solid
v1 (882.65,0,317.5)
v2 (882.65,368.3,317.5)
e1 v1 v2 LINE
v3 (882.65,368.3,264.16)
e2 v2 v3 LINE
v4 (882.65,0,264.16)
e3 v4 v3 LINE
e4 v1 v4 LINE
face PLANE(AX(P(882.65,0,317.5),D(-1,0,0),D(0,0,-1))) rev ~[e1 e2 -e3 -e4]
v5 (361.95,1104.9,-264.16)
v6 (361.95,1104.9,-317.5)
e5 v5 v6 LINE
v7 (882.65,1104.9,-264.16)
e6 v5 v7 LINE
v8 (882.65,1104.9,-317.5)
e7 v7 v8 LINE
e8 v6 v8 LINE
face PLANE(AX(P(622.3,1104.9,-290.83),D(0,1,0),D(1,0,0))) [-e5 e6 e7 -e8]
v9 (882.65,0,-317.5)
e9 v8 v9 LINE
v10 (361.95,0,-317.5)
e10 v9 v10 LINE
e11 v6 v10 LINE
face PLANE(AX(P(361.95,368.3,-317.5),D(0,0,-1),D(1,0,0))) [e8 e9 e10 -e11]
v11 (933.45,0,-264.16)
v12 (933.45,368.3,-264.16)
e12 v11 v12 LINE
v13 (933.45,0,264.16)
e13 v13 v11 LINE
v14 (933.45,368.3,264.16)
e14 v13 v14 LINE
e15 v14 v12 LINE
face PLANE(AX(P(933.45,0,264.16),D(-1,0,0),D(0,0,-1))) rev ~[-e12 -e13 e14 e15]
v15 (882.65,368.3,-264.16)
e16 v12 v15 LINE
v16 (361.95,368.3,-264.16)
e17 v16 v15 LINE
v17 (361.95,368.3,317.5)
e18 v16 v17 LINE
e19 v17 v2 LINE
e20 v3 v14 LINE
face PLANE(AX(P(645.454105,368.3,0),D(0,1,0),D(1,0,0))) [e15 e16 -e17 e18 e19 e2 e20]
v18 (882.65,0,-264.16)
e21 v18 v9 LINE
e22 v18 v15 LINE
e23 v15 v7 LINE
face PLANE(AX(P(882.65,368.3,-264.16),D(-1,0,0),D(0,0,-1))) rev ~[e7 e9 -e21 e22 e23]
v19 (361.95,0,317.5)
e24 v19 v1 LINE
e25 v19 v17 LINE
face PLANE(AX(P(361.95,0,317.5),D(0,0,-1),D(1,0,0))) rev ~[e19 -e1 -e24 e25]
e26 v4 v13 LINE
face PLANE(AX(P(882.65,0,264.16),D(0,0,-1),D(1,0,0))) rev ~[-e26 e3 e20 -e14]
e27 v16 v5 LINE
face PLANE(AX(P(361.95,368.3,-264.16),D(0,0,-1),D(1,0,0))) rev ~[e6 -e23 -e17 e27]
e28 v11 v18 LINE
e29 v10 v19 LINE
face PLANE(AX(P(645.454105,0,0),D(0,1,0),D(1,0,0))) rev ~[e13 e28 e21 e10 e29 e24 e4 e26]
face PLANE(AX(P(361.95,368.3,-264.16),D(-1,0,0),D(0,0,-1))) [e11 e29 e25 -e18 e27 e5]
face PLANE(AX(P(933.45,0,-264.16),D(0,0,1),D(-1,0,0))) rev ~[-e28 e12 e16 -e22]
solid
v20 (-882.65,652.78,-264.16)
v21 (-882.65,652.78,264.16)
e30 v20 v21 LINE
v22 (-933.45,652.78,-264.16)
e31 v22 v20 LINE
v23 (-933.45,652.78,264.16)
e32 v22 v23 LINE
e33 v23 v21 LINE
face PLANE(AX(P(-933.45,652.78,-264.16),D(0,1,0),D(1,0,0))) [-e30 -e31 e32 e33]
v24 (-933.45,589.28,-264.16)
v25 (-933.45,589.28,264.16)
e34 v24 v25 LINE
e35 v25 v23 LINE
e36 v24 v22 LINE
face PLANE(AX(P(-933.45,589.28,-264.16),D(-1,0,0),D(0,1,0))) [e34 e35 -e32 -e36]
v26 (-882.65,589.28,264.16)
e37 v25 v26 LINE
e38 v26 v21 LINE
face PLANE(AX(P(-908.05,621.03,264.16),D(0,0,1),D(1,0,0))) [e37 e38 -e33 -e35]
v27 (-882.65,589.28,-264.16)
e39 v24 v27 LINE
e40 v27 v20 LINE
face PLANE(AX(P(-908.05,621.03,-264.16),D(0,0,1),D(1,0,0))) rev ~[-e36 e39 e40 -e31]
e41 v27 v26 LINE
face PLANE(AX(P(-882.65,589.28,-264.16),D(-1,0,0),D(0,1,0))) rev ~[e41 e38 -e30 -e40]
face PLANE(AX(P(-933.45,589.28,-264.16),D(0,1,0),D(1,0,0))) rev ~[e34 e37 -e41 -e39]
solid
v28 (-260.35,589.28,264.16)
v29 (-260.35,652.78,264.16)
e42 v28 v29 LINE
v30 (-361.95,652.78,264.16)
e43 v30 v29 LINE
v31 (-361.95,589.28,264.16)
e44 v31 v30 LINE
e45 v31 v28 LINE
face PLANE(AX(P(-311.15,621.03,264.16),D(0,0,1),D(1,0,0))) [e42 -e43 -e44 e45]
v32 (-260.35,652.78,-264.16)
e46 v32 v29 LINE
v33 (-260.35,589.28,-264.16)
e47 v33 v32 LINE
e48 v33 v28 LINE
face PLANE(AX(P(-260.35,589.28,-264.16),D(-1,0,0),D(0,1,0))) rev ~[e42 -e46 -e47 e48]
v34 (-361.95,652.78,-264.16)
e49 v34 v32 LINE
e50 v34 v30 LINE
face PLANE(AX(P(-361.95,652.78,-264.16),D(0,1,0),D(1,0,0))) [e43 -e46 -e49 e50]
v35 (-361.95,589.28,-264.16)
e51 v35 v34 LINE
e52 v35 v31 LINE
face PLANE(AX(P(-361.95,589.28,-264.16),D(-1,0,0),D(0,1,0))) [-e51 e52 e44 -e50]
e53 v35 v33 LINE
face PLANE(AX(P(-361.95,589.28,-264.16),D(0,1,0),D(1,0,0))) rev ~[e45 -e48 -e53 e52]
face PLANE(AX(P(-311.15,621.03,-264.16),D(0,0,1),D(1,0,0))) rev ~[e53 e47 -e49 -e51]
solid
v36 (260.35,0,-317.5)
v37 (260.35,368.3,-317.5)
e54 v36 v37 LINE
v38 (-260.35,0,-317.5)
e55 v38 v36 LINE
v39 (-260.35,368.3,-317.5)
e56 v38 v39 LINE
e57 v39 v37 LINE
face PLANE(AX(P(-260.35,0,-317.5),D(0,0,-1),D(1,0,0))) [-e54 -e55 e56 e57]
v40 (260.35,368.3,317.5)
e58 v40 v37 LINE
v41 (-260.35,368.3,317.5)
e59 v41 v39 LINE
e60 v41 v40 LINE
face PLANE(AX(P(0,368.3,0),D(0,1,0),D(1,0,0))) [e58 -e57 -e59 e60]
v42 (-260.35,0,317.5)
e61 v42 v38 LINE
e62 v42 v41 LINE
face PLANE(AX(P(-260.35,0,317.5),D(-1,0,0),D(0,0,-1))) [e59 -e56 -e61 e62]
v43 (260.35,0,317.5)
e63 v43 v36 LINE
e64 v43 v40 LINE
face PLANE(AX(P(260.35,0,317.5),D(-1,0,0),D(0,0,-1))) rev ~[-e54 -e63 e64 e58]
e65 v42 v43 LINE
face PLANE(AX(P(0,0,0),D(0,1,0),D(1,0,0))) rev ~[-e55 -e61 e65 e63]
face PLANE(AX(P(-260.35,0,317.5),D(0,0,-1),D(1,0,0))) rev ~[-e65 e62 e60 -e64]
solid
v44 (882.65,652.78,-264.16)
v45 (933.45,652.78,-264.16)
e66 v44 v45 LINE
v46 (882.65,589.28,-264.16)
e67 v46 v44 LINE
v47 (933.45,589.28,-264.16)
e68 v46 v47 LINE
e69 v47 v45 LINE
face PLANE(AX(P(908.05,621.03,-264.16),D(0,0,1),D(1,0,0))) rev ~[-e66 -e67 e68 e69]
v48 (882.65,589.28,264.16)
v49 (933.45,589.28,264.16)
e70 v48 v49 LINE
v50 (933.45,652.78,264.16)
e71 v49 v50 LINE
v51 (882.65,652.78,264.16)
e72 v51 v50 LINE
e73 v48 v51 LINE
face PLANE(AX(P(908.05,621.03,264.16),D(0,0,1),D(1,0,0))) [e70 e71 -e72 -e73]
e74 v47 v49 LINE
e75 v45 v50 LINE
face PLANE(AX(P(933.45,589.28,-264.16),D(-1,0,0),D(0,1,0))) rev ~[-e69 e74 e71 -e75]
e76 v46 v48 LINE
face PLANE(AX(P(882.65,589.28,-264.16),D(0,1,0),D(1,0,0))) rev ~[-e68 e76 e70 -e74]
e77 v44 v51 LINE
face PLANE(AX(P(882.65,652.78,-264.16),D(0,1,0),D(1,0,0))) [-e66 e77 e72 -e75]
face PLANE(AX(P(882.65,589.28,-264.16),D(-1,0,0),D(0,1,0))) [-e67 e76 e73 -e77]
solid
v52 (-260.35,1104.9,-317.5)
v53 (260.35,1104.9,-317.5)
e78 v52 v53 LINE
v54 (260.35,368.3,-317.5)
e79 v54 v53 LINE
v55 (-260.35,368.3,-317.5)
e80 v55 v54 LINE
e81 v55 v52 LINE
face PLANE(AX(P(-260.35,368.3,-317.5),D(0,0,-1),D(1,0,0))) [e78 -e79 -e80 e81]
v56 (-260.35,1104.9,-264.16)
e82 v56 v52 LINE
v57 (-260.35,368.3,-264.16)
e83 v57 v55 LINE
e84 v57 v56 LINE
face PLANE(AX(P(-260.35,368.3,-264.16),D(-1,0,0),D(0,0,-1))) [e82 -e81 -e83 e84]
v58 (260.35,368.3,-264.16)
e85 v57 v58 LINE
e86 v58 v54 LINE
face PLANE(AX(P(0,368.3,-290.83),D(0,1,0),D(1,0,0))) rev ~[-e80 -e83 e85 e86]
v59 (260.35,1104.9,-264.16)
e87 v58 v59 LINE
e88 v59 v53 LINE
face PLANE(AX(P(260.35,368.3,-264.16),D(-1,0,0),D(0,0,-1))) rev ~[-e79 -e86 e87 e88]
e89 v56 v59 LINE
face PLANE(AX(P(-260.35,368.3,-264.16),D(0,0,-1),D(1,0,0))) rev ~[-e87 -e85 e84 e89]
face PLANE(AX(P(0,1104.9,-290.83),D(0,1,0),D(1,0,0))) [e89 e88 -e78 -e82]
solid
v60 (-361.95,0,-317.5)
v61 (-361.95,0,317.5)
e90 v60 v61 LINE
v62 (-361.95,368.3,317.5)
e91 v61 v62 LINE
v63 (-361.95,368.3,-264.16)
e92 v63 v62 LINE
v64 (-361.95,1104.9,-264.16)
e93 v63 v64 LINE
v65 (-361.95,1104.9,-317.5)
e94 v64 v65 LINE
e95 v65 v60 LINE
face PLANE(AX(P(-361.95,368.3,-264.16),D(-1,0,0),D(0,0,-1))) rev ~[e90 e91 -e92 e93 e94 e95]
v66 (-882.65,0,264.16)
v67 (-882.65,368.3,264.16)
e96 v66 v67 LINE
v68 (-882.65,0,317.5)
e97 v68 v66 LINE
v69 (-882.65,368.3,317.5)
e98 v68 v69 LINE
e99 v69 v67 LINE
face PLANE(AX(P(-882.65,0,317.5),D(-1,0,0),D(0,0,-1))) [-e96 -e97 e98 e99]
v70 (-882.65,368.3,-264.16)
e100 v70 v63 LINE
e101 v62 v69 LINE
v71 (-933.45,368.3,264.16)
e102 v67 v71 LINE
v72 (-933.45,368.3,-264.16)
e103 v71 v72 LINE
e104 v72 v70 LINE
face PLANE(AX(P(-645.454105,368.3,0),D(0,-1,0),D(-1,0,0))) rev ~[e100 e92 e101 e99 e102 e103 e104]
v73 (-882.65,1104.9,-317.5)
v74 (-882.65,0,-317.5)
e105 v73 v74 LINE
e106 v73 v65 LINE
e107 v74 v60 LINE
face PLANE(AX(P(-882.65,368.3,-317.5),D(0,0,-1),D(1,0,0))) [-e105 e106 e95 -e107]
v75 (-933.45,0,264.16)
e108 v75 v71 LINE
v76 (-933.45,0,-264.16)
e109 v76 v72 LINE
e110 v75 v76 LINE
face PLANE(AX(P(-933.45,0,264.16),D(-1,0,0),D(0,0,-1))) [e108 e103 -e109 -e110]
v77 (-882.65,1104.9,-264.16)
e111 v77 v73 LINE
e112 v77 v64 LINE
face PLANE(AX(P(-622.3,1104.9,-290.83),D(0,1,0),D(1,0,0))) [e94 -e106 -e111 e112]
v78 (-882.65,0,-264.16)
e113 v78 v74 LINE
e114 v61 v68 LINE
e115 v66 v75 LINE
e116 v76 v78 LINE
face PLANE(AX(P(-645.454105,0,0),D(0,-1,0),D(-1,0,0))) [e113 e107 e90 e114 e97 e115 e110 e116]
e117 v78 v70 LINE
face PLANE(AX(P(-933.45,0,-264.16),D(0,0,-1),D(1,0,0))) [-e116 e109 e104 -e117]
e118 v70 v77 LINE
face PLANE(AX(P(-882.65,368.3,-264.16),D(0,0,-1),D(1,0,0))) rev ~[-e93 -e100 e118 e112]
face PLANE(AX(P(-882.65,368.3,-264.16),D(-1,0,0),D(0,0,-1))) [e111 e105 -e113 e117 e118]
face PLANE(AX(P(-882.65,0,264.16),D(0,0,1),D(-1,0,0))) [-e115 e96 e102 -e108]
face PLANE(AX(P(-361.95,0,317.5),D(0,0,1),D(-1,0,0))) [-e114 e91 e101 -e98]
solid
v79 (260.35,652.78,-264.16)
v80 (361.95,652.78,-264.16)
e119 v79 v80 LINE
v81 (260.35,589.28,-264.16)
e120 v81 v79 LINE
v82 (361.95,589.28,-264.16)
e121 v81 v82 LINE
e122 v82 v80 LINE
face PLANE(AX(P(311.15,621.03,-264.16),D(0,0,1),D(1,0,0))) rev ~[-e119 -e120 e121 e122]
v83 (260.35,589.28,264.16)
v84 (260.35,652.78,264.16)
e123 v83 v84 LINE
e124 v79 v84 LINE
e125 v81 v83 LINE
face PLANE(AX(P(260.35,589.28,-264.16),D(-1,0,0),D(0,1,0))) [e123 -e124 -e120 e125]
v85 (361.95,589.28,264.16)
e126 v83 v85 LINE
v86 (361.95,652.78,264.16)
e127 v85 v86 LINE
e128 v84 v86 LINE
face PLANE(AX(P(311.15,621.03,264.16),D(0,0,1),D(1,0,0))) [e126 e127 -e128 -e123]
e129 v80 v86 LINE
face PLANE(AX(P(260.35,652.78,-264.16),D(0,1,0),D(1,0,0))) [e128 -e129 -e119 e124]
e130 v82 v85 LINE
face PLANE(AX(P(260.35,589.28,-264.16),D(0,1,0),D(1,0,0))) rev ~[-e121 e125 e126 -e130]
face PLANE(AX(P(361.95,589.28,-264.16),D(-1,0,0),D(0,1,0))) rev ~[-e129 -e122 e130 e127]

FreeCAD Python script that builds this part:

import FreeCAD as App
import Part
import Sketcher
Q = App.Units.Quantity


def add_polygon(sketch, points):
    """Adds a closed chain of lines whose ends are joined by coincident constraints."""
    first, n = sketch.GeometryCount, len(points)
    for a, b in zip(points, points[1:] + points[:1]):
        sketch.addGeometry(Part.LineSegment(App.Vector(*a, 0), App.Vector(*b, 0)), False)
    for i in range(n):
        sketch.addConstraint(Sketcher.Constraint("Coincident", first + i, 2, first + (i + 1) % n, 1))

doc = App.newDocument("Part")
body = doc.addObject("PartDesign::Body", "Body")

sketch1 = doc.addObject("Sketcher::SketchObject", "Sketch")
body.addObject(sketch1)
sketch1.AttachmentSupport = (doc.XZ_Plane, [""])
sketch1.MapMode = "FlatFace"
add_polygon(sketch1, [(-883, -264), (-933, -264), (-933, 264), (-883, 264), (-883, 318), (-362, 318), (-362, -318), (-883, -318)])
sketch1.addConstraint([
    Sketcher.Constraint("Horizontal", 0),
    Sketcher.Constraint("Vertical", 1),
    Sketcher.Constraint("Horizontal", 2),
    Sketcher.Constraint("Vertical", 3),
    Sketcher.Constraint("Horizontal", 4),
    Sketcher.Constraint("Vertical", 5),
    Sketcher.Constraint("Horizontal", 6),
    Sketcher.Constraint("Vertical", 7),
    Sketcher.Constraint("Symmetric", 3, 2, 6, 2, -1),
    Sketcher.Constraint("Equal", 3, 7),
    Sketcher.Constraint("DistanceX", 0, 2, 0, 1, Q("2 in")),
    Sketcher.Constraint("DistanceY", 5, 2, 5, 1, Q("25 in")),
    Sketcher.Constraint("DistanceX", 4, 1, 4, 2, Q("20.5 in")),
    Sketcher.Constraint("DistanceY", 1, 1, 1, 2, Q("20.8 in")),
    Sketcher.Constraint("DistanceX", 0, 2, -1, 1, Q("36.75 in")),
])
pad1 = doc.addObject("PartDesign::Pad", "Pad")
body.addObject(pad1)
pad1.Profile = sketch1
pad1.Length = Q("14.5 in")
pad1.Reversed = True
body2 = doc.addObject("PartDesign::Body", "Body001")

sketch2 = doc.addObject("Sketcher::SketchObject", "Sketch001")
body2.addObject(sketch2)
sketch2.AttachmentSupport = (doc.getObject("XZ_Plane001"), [""])
sketch2.MapMode = "FlatFace"
add_polygon(sketch2, [(362, 318), (883, 318), (883, 264), (933, 264), (933, -264), (883, -264), (883, -318), (362, -318)])
sketch2.addConstraint([
    Sketcher.Constraint("Horizontal", 0),
    Sketcher.Constraint("Vertical", 1),
    Sketcher.Constraint("Horizontal", 2),
    Sketcher.Constraint("Vertical", 3),
    Sketcher.Constraint("Horizontal", 4),
    Sketcher.Constraint("Vertical", 5),
    Sketcher.Constraint("Horizontal", 6),
    Sketcher.Constraint("Vertical", 7),
    Sketcher.Constraint("Symmetric", 1, 2, 4, 2, -1),
    Sketcher.Constraint("Equal", 1, 5),
    Sketcher.Constraint("DistanceX", 2, 1, 2, 2, Q("2 in")),
    Sketcher.Constraint("DistanceY", 7, 1, 7, 2, Q("25 in")),
    Sketcher.Constraint("DistanceX", 0, 1, 0, 2, Q("20.5 in")),
    Sketcher.Constraint("DistanceY", 1, 2, 1, 1, Q("2.1 in")),
    Sketcher.Constraint("DistanceX", -1, 1, 0, 2, Q("34.75 in")),
])
pad2 = doc.addObject("PartDesign::Pad", "Pad001")
body2.addObject(pad2)
pad2.Profile = sketch2
pad2.Length = Q("14.5 in")
pad2.Reversed = True
body3 = doc.addObject("PartDesign::Body", "Body002")

sketch3 = doc.addObject("Sketcher::SketchObject", "Sketch002")
body3.addObject(sketch3)
sketch3.AttachmentSupport = (doc.getObject("XZ_Plane002"), [""])
sketch3.MapMode = "FlatFace"
add_polygon(sketch3, [(-260, -318), (-260, 318), (260, 318), (260, -318)])
sketch3.addConstraint([
    Sketcher.Constraint("Vertical", 0),
    Sketcher.Constraint("Horizontal", 1),
    Sketcher.Constraint("Vertical", 2),
    Sketcher.Constraint("Horizontal", 3),
    Sketcher.Constraint("Symmetric", 0, 2, 2, 2, -1, 1),
    Sketcher.Constraint("DistanceY", 0, 1, 0, 2, Q("25 in")),
    Sketcher.Constraint("DistanceX", 1, 1, 1, 2, Q("20.5 in")),
])
pad3 = doc.addObject("PartDesign::Pad", "Pad002")
body3.addObject(pad3)
pad3.Profile = sketch3
pad3.Length = Q("14.5 in")
pad3.Reversed = True
body.AllowCompound = True
doc.recompute()

boolean = doc.addObject("PartDesign::Boolean", "Boolean")
body.addObject(boolean)
boolean.Type = "Fuse"
boolean.addObjects([body2])

sketch4 = doc.addObject("Sketcher::SketchObject", "Sketch003")
body.addObject(sketch4)
sketch4.AttachmentSupport = (doc.XZ_Plane, [""])
sketch4.MapMode = "FlatFace"
sketch4.AttachmentOffset = App.Placement(App.Vector(0, 0, -14.5 * 25.4), App.Rotation())
add_polygon(sketch4, [(-883, -318), (-883, -264), (-362, -264), (-362, -318)])
add_polygon(sketch4, [(362, -318), (362, -264), (883, -264), (883, -318)])
add_polygon(sketch4, [(-260, -318), (-260, -264), (260, -264), (260, -318)])
sketch4.addConstraint([
    Sketcher.Constraint("Vertical", 0),
    Sketcher.Constraint("Horizontal", 1),
    Sketcher.Constraint("Vertical", 2),
    Sketcher.Constraint("Horizontal", 3),
    Sketcher.Constraint("Vertical", 4),
    Sketcher.Constraint("Horizontal", 5),
    Sketcher.Constraint("Vertical", 6),
    Sketcher.Constraint("Horizontal", 7),
    Sketcher.Constraint("Vertical", 8),
    Sketcher.Constraint("Horizontal", 9),
    Sketcher.Constraint("Vertical", 10),
    Sketcher.Constraint("Horizontal", 11),
    Sketcher.Constraint("Symmetric", 1, 2, 4, 2, -2),
    Sketcher.Constraint("Symmetric", 3, 2, 6, 2, -2),
    Sketcher.Constraint("Horizontal", 5, 2, 8, 2),
    Sketcher.Constraint("Horizontal", 7, 2, 10, 2),
    Sketcher.Constraint("Equal", 7, 9),
    Sketcher.Constraint("DistanceX", 1, 1, 1, 2, Q("20.5 in")),
    Sketcher.Constraint("DistanceY", 0, 1, 0, 2, Q("2.1 in")),
    Sketcher.Constraint("DistanceX", 0, 2, 4, 2, Q("49 in")),
    Sketcher.Constraint("DistanceX", 1, 2, 8, 2, Q("4 in")),
    Sketcher.Constraint("DistanceY", 0, 2, -1, 1, Q("10.4 in")),
])
pad4 = doc.addObject("PartDesign::Pad", "Pad003")
body.addObject(pad4)
pad4.Profile = sketch4
pad4.Length = Q("29 in")
pad4.Reversed = True
body4 = doc.addObject("PartDesign::Body", "Body003")

sketch5 = doc.addObject("Sketcher::SketchObject", "Sketch004")
body4.addObject(sketch5)
sketch5.AttachmentSupport = (doc.getObject("XY_Plane003"), [""])
sketch5.MapMode = "FlatFace"
sketch5.AttachmentOffset = App.Placement(App.Vector(0, 0, -10.4 * 25.4), App.Rotation())
add_polygon(sketch5, [(-933, 653), (-933, 589), (-883, 589), (-883, 653)])
sketch5.addConstraint([
    Sketcher.Constraint("Vertical", 0),
    Sketcher.Constraint("Horizontal", 1),
    Sketcher.Constraint("Vertical", 2),
    Sketcher.Constraint("Horizontal", 3),
    Sketcher.Constraint("DistanceX", 1, 1, 1, 2, Q("2 in")),
    Sketcher.Constraint("DistanceY", 0, 2, 0, 1, Q("2.5 in")),
    Sketcher.Constraint("DistanceY", -1, 1, 0, 2, Q("23.2 in")),
    Sketcher.Constraint("DistanceX", 0, 2, -1, 1, Q("36.75 in")),
])
pad5 = doc.addObject("PartDesign::Pad", "Pad004")
body4.addObject(pad5)
pad5.Profile = sketch5
pad5.Length = Q("20.8 in")
body5 = doc.addObject("PartDesign::Body", "Body004")

sketch6 = doc.addObject("Sketcher::SketchObject", "Sketch005")
body5.addObject(sketch6)
sketch6.AttachmentSupport = (doc.getObject("XY_Plane004"), [""])
sketch6.MapMode = "FlatFace"
sketch6.AttachmentOffset = App.Placement(App.Vector(0, 0, -10.4 * 25.4), App.Rotation())
add_polygon(sketch6, [(883, 653), (883, 589), (933, 589), (933, 653)])
sketch6.addConstraint([
    Sketcher.Constraint("Vertical", 0),
    Sketcher.Constraint("Horizontal", 1),
    Sketcher.Constraint("Vertical", 2),
    Sketcher.Constraint("Horizontal", 3),
    Sketcher.Constraint("DistanceX", 1, 1, 1, 2, Q("2 in")),
    Sketcher.Constraint("DistanceY", 0, 2, 0, 1, Q("2.5 in")),
    Sketcher.Constraint("DistanceY", -1, 1, 0, 2, Q("23.2 in")),
    Sketcher.Constraint("DistanceX", -1, 1, 0, 2, Q("34.75 in")),
])
pad6 = doc.addObject("PartDesign::Pad", "Pad005")
body5.addObject(pad6)
pad6.Profile = sketch6
pad6.Length = Q("20.8 in")
body6 = doc.addObject("PartDesign::Body", "Body005")

sketch7 = doc.addObject("Sketcher::SketchObject", "Sketch006")
body6.addObject(sketch7)
sketch7.AttachmentSupport = (doc.getObject("XY_Plane005"), [""])
sketch7.MapMode = "FlatFace"
sketch7.AttachmentOffset = App.Placement(App.Vector(0, 0, -10.4 * 25.4), App.Rotation())
add_polygon(sketch7, [(-362, 653), (-362, 589), (-260, 589), (-260, 653)])
sketch7.addConstraint([
    Sketcher.Constraint("Vertical", 0),
    Sketcher.Constraint("Horizontal", 1),
    Sketcher.Constraint("Vertical", 2),
    Sketcher.Constraint("Horizontal", 3),
    Sketcher.Constraint("DistanceX", 1, 1, 1, 2, Q("4 in")),
    Sketcher.Constraint("DistanceY", 0, 2, 0, 1, Q("2.5 in")),
    Sketcher.Constraint("DistanceY", -1, 1, 0, 2, Q("23.2 in")),
    Sketcher.Constraint("DistanceX", 0, 2, -1, 1, Q("14.25 in")),
])
pad7 = doc.addObject("PartDesign::Pad", "Pad006")
body6.addObject(pad7)
pad7.Profile = sketch7
pad7.Length = Q("20.8 in")
body7 = doc.addObject("PartDesign::Body", "Body006")

sketch8 = doc.addObject("Sketcher::SketchObject", "Sketch007")
body7.addObject(sketch8)
sketch8.AttachmentSupport = (doc.getObject("XY_Plane006"), [""])
sketch8.MapMode = "FlatFace"
sketch8.AttachmentOffset = App.Placement(App.Vector(0, 0, -10.4 * 25.4), App.Rotation())
add_polygon(sketch8, [(260, 653), (260, 589), (362, 589), (362, 653)])
sketch8.addConstraint([
    Sketcher.Constraint("Vertical", 0),
    Sketcher.Constraint("Horizontal", 1),
    Sketcher.Constraint("Vertical", 2),
    Sketcher.Constraint("Horizontal", 3),
    Sketcher.Constraint("DistanceX", 1, 1, 1, 2, Q("4 in")),
    Sketcher.Constraint("DistanceY", 0, 2, 0, 1, Q("2.5 in")),
    Sketcher.Constraint("DistanceY", -1, 1, 0, 2, Q("23.2 in")),
    Sketcher.Constraint("DistanceX", -1, 1, 0, 2, Q("10.25 in")),
])
pad8 = doc.addObject("PartDesign::Pad", "Pad007")
body7.addObject(pad8)
pad8.Profile = sketch8
pad8.Length = Q("20.8 in")

doc.recompute()
